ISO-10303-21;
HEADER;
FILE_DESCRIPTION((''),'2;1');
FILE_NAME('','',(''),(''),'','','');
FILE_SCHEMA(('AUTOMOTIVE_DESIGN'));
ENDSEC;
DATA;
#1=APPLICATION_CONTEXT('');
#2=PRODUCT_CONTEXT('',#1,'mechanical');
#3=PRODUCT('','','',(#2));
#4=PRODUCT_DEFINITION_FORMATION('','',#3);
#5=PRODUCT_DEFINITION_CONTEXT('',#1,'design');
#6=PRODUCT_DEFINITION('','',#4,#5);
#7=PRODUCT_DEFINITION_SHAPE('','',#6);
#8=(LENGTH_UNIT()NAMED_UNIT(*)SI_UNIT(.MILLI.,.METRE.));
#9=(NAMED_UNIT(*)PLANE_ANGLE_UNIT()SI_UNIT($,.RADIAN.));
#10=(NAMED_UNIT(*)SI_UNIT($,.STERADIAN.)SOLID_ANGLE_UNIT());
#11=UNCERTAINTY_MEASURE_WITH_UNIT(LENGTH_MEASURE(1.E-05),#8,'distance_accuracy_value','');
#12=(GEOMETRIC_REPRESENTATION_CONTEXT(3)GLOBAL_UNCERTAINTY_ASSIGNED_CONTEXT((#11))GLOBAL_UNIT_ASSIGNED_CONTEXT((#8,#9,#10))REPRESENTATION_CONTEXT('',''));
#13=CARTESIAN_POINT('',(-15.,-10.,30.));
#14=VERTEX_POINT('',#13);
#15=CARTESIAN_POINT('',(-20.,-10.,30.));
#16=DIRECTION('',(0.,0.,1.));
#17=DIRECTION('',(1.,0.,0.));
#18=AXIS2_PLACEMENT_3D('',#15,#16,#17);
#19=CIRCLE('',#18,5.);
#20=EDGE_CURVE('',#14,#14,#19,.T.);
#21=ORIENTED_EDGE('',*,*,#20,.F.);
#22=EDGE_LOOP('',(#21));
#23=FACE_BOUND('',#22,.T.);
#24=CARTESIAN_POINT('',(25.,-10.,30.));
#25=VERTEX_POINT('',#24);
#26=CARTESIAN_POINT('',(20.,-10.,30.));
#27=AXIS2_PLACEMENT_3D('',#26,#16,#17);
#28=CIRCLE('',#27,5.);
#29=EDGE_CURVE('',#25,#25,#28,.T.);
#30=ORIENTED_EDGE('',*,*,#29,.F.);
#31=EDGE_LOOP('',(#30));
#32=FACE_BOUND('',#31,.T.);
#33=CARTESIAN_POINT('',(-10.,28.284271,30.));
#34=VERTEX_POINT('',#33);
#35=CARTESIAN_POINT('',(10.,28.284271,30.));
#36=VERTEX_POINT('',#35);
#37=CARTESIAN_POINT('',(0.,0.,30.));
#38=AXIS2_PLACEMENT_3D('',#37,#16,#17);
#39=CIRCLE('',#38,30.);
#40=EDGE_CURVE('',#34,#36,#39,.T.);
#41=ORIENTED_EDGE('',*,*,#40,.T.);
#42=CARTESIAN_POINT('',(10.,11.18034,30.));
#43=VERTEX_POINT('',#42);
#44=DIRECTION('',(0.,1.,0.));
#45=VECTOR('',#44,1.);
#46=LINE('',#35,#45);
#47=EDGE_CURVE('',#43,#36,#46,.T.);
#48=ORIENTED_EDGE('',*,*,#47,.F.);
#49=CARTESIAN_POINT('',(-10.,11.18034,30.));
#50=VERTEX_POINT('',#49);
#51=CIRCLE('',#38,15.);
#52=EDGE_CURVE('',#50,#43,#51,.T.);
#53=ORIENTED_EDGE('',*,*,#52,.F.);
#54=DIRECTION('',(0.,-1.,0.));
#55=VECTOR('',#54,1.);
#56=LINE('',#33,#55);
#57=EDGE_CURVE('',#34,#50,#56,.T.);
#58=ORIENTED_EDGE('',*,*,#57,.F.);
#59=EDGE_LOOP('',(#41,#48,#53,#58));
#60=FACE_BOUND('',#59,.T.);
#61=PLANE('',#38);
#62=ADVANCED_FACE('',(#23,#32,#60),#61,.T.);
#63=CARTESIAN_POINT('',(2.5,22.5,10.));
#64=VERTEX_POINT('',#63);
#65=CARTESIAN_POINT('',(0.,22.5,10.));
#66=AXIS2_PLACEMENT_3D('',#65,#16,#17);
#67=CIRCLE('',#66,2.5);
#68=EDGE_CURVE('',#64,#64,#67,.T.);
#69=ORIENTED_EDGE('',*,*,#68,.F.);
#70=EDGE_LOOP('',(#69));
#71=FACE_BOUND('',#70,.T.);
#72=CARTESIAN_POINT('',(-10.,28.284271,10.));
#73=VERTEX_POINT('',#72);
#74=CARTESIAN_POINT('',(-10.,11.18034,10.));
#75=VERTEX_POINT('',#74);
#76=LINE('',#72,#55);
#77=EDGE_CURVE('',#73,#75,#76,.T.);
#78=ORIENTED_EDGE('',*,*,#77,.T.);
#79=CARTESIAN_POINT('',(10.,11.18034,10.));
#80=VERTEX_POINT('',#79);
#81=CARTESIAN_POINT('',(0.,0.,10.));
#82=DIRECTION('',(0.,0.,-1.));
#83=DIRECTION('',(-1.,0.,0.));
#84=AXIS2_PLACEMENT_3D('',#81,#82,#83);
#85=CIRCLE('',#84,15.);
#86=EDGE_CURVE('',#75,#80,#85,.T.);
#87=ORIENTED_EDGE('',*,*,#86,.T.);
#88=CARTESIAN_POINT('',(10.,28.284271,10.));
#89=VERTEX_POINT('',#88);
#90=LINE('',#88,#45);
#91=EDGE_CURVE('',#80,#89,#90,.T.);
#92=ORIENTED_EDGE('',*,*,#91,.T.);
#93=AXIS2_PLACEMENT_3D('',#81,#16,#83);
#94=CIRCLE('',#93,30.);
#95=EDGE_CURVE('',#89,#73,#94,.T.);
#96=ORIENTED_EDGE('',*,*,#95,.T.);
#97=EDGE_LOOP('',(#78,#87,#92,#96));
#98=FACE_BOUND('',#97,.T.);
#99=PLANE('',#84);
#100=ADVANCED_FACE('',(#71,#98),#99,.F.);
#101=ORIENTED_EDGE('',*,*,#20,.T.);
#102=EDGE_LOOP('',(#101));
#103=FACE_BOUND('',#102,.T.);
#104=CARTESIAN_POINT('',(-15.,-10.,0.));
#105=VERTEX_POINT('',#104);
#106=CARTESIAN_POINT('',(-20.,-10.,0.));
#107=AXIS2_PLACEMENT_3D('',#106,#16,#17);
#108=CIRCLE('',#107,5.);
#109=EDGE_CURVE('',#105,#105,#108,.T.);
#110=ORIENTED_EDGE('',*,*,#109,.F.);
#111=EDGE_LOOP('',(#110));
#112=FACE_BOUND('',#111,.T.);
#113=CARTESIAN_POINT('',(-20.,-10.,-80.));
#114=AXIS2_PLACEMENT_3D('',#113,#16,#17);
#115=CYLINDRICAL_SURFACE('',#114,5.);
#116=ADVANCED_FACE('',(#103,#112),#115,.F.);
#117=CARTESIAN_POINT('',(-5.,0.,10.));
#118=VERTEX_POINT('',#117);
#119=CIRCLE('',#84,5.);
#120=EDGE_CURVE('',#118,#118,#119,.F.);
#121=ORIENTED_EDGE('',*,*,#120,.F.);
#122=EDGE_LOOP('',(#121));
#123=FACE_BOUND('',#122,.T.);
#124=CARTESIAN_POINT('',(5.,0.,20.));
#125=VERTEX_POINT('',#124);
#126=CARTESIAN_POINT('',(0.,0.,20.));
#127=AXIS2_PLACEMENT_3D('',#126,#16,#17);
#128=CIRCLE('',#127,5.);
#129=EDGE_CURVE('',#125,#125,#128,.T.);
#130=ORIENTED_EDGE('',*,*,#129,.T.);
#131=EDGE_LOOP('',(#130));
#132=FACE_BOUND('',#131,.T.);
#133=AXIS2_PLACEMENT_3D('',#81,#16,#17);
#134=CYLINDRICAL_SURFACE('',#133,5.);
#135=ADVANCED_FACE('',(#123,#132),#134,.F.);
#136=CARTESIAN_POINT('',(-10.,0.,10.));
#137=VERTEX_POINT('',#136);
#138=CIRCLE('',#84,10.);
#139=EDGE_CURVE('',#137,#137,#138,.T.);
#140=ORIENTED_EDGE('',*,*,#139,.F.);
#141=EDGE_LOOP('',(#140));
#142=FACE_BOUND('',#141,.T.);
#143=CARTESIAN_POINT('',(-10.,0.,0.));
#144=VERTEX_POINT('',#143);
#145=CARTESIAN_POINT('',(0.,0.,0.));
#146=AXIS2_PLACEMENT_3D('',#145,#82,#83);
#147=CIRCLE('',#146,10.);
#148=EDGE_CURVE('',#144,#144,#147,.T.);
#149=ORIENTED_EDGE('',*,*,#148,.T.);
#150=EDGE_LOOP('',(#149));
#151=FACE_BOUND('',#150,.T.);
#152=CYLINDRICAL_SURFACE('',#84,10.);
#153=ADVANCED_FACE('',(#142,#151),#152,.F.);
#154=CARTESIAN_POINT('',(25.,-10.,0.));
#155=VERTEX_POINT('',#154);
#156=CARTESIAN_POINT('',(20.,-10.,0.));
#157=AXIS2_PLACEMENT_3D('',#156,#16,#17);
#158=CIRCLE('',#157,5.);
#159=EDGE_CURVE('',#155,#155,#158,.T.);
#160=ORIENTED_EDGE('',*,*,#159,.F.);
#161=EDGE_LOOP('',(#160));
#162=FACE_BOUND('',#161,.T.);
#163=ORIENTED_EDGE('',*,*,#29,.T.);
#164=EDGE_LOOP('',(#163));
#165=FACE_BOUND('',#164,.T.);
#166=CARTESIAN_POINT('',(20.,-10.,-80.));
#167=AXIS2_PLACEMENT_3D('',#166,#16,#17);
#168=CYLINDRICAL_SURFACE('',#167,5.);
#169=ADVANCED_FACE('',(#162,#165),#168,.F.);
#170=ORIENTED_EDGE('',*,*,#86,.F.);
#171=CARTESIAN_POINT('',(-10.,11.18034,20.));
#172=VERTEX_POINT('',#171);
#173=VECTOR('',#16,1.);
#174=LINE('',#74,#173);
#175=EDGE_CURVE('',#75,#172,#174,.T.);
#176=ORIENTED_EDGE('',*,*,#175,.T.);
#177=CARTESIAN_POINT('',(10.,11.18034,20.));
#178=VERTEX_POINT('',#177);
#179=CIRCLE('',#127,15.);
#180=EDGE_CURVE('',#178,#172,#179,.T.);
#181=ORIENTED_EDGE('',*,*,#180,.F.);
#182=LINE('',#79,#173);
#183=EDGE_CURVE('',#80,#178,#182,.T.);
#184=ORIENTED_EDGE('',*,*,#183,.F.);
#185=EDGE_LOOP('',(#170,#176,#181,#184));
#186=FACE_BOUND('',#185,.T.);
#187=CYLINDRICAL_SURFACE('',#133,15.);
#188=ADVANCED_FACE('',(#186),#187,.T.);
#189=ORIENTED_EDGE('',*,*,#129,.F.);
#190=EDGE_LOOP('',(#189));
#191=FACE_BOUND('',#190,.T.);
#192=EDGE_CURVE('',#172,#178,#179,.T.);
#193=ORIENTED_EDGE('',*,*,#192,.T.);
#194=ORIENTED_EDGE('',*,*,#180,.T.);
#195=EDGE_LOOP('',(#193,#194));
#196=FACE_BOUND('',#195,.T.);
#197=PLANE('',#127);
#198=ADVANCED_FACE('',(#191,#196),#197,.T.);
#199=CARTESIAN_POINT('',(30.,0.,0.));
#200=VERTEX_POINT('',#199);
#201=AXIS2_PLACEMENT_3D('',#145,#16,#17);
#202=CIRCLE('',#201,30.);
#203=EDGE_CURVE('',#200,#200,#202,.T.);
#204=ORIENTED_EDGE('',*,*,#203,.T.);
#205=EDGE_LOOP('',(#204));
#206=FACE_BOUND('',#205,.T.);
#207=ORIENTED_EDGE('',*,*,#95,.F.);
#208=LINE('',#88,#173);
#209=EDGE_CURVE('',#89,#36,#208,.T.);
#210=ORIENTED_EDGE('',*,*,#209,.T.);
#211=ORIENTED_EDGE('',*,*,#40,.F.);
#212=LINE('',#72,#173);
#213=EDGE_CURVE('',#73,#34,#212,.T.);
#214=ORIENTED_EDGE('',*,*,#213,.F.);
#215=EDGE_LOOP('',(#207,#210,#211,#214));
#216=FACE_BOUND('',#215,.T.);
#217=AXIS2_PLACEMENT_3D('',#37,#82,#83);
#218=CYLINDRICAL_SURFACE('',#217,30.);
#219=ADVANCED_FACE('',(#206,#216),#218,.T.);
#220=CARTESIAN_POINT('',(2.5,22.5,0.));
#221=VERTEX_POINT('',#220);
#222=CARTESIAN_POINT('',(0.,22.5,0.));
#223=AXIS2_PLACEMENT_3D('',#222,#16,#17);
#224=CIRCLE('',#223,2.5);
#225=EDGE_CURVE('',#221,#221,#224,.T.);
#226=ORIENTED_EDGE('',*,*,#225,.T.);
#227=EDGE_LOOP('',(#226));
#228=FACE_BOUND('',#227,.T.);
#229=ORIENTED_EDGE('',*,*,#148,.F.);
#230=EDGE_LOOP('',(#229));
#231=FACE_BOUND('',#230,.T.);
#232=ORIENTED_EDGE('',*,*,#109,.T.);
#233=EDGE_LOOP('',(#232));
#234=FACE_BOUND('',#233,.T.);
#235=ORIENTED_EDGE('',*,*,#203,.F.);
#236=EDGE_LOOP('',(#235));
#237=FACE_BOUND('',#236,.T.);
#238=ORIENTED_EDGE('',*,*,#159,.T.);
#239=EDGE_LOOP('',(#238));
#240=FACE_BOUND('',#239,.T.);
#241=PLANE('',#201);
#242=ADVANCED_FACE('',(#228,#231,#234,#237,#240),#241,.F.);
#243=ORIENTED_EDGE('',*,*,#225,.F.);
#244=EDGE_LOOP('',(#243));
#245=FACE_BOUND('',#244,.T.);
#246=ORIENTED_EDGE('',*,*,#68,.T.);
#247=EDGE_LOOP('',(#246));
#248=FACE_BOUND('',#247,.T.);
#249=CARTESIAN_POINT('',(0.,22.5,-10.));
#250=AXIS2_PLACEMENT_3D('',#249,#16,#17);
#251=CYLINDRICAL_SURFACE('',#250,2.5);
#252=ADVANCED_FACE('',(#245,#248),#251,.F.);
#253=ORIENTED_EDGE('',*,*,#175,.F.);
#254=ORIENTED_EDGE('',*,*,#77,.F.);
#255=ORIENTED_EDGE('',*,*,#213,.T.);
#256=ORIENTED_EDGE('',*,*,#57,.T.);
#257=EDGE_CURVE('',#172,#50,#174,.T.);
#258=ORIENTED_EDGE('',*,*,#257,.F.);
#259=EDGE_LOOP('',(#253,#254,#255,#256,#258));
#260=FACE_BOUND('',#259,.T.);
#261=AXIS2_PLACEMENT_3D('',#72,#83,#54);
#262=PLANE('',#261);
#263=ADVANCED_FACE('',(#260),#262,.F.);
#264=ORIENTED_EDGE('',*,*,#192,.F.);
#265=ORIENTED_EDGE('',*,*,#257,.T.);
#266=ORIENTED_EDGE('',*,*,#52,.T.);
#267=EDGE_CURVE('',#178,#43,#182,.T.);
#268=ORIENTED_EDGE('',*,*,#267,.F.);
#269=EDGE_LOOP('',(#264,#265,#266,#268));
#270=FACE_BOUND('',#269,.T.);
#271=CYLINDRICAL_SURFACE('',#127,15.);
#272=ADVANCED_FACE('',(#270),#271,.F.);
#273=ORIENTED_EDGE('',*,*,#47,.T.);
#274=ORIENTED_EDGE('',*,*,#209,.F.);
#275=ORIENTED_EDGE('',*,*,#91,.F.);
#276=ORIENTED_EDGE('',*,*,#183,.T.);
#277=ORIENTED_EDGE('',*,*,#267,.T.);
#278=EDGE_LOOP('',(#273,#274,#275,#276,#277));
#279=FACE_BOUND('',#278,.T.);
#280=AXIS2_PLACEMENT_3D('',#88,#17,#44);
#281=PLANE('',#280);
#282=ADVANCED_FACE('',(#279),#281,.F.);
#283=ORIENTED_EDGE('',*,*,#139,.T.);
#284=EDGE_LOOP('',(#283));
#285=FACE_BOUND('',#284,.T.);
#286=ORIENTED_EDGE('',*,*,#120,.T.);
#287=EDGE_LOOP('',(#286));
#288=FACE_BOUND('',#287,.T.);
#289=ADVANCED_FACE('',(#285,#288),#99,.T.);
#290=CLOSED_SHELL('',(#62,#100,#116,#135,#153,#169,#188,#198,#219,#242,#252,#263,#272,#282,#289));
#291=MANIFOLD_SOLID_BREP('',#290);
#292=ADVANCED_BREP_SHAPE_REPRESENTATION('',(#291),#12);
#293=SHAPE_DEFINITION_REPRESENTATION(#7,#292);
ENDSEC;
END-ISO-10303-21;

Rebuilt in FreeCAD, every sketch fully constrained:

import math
import FreeCAD as App
import Part
import Sketcher
from FreeCAD import Vector
Q = App.Units.Quantity

doc = App.newDocument("Part")
body = doc.addObject("PartDesign::Body", "Body")

# Sketch on XY plane
sketch1 = body.newObject("Sketcher::SketchObject", "Sketch")
sketch1.AttachmentSupport = (doc.getObject("XY_Plane"), [""])
sketch1.MapMode = "FlatFace"
sketch1.addGeometry(Part.Circle(Vector(0, 0, 0), Vector(0, 0, 1), 30), False)
sketch1.addConstraint([
    Sketcher.Constraint("Coincident", 0, 3, -1, 1),
    Sketcher.Constraint("Diameter", 0, Q("60 mm")),
])
pad1 = body.newObject("PartDesign::Pad", "Pad")
pad1.Profile = sketch1
pad1.Length = 30

# Sketch on XY plane
sketch2 = body.newObject("Sketcher::SketchObject", "Sketch001")
sketch2.AttachmentSupport = (doc.getObject("XY_Plane"), [""])
sketch2.MapMode = "FlatFace"
sketch2.AttachmentOffset = App.Placement(Vector(0, 0, 30), App.Rotation())
sketch2.addGeometry(Part.Circle(Vector(0, 0, 0), Vector(0, 0, 1), 15), False)
sketch2.addConstraint([
    Sketcher.Constraint("Coincident", 0, 3, -1, 1),
    Sketcher.Constraint("Diameter", 0, Q("30 mm")),
])
pocket1 = body.newObject("PartDesign::Pocket", "Pocket")
pocket1.Profile = sketch2
pocket1.Length = 10

# Sketch on XY plane
sketch3 = body.newObject("Sketcher::SketchObject", "Sketch002")
sketch3.AttachmentSupport = (doc.getObject("XY_Plane"), [""])
sketch3.MapMode = "FlatFace"
sketch3.AttachmentOffset = App.Placement(Vector(0, 0, 20), App.Rotation())
sketch3.addGeometry(Part.Circle(Vector(0, 0, 0), Vector(0, 0, 1), 5), False)
sketch3.addConstraint([
    Sketcher.Constraint("Coincident", 0, 3, -1, 1),
    Sketcher.Constraint("Diameter", 0, Q("10 mm")),
])
pocket2 = body.newObject("PartDesign::Pocket", "Pocket001")
pocket2.Profile = sketch3
pocket2.Length = 10

# Sketch on XY plane
sketch4 = body.newObject("Sketcher::SketchObject", "Sketch003")
sketch4.AttachmentSupport = (doc.getObject("XY_Plane"), [""])
sketch4.MapMode = "FlatFace"
sketch4.AttachmentOffset = App.Placement(Vector(0, 0, 30), App.Rotation())
sketch4.addGeometry([
    Part.Circle(Vector(20, -10, 0), Vector(0, 0, 1), 5),
    Part.Circle(Vector(-20, -10, 0), Vector(0, 0, 1), 5),
], False)
sketch4.addConstraint([
    Sketcher.Constraint("Equal", 0, 1),
    Sketcher.Constraint("Symmetric", 0, 3, 1, 3, -2),
    Sketcher.Constraint("Diameter", 0, Q("10 mm")),
    Sketcher.Constraint("DistanceX", -1, 1, 0, 3, Q("20 mm")),
    Sketcher.Constraint("DistanceY", 0, 3, -1, 1, Q("10 mm")),
])
pocket3 = body.newObject("PartDesign::Pocket", "Pocket002")
pocket3.Profile = sketch4
pocket3.Length = 110

# Sketch on XY plane
sketch5 = body.newObject("Sketcher::SketchObject", "Sketch004")
sketch5.AttachmentSupport = (doc.getObject("XY_Plane"), [""])
sketch5.MapMode = "FlatFace"
sketch5.AttachmentOffset = App.Placement(Vector(0, 0, 30), App.Rotation())
sketch5.addGeometry([
    Part.LineSegment(Vector(-10, 28, 0), Vector(-10, 11, 0)),
    Part.ArcOfCircle(Part.Circle(Vector(0, 0, 0), Vector(0, 0, 1), 15), math.radians(48), math.radians(132)),
    Part.LineSegment(Vector(10, 11, 0), Vector(10, 28, 0)),
    Part.ArcOfCircle(Part.Circle(Vector(0, 0, 0), Vector(0, 0, 1), 30), math.radians(71), math.radians(109)),
], False)
sketch5.addConstraint([
    Sketcher.Constraint("Coincident", 0, 2, 1, 2),
    Sketcher.Constraint("Coincident", 1, 1, 2, 1),
    Sketcher.Constraint("Coincident", 2, 2, 3, 1),
    Sketcher.Constraint("Coincident", 3, 2, 0, 1),
    Sketcher.Constraint("Vertical", 0),
    Sketcher.Constraint("Vertical", 2),
    Sketcher.Constraint("Coincident", 1, 3, -1, 1),
    Sketcher.Constraint("Coincident", 3, 3, -1, 1),
    Sketcher.Constraint("Horizontal", 0, 2, 1, 1),
    Sketcher.Constraint("Radius", 1, Q("15 mm")),
    Sketcher.Constraint("Radius", 3, Q("30 mm")),
    Sketcher.Constraint("DistanceX", 0, 2, -1, 1, Q("10 mm")),
])
pocket4 = body.newObject("PartDesign::Pocket", "Pocket003")
pocket4.Profile = sketch5
pocket4.Length = 20

# Sketch on XY plane
sketch6 = body.newObject("Sketcher::SketchObject", "Sketch005")
sketch6.AttachmentSupport = (doc.getObject("XY_Plane"), [""])
sketch6.MapMode = "FlatFace"
sketch6.AttachmentOffset = App.Placement(Vector(0, 0, 10), App.Rotation())
sketch6.addGeometry(Part.Circle(Vector(0, 22.5, 0), Vector(0, 0, 1), 2.5), False)
sketch6.addConstraint([
    Sketcher.Constraint("PointOnObject", 0, 3, -2),
    Sketcher.Constraint("Diameter", 0, Q("5 mm")),
    Sketcher.Constraint("DistanceY", -1, 1, 0, 3, Q("22.5 mm")),
])
pocket5 = body.newObject("PartDesign::Pocket", "Pocket004")
pocket5.Profile = sketch6
pocket5.Length = 20

# Sketch on XY plane
sketch7 = body.newObject("Sketcher::SketchObject", "Sketch006")
sketch7.AttachmentSupport = (doc.getObject("XY_Plane"), [""])
sketch7.MapMode = "FlatFace"
sketch7.AttachmentOffset = App.Placement(Vector(0, 0, 10), App.Rotation())
sketch7.addGeometry(Part.Circle(Vector(0, 0, 0), Vector(0, 0, 1), 5), False)
sketch7.addConstraint([
    Sketcher.Constraint("Coincident", 0, 3, -1, 1),
    Sketcher.Constraint("Diameter", 0, Q("10 mm")),
])
pocket6 = body.newObject("PartDesign::Pocket", "Pocket005")
pocket6.Profile = sketch7
pocket6.Length = 10

# Sketch on XY plane
sketch8 = body.newObject("Sketcher::SketchObject", "Sketch007")
sketch8.AttachmentSupport = (doc.getObject("XY_Plane"), [""])
sketch8.MapMode = "FlatFace"
sketch8.addGeometry(Part.Circle(Vector(0, 0, 0), Vector(0, 0, 1), 10), False)
sketch8.addConstraint([
    Sketcher.Constraint("Coincident", 0, 3, -1, 1),
    Sketcher.Constraint("Diameter", 0, Q("20 mm")),
])
pocket7 = body.newObject("PartDesign::Pocket", "Pocket006")
pocket7.Profile = sketch8
pocket7.Length = 10
pocket7.Reversed = True

doc.recompute()
